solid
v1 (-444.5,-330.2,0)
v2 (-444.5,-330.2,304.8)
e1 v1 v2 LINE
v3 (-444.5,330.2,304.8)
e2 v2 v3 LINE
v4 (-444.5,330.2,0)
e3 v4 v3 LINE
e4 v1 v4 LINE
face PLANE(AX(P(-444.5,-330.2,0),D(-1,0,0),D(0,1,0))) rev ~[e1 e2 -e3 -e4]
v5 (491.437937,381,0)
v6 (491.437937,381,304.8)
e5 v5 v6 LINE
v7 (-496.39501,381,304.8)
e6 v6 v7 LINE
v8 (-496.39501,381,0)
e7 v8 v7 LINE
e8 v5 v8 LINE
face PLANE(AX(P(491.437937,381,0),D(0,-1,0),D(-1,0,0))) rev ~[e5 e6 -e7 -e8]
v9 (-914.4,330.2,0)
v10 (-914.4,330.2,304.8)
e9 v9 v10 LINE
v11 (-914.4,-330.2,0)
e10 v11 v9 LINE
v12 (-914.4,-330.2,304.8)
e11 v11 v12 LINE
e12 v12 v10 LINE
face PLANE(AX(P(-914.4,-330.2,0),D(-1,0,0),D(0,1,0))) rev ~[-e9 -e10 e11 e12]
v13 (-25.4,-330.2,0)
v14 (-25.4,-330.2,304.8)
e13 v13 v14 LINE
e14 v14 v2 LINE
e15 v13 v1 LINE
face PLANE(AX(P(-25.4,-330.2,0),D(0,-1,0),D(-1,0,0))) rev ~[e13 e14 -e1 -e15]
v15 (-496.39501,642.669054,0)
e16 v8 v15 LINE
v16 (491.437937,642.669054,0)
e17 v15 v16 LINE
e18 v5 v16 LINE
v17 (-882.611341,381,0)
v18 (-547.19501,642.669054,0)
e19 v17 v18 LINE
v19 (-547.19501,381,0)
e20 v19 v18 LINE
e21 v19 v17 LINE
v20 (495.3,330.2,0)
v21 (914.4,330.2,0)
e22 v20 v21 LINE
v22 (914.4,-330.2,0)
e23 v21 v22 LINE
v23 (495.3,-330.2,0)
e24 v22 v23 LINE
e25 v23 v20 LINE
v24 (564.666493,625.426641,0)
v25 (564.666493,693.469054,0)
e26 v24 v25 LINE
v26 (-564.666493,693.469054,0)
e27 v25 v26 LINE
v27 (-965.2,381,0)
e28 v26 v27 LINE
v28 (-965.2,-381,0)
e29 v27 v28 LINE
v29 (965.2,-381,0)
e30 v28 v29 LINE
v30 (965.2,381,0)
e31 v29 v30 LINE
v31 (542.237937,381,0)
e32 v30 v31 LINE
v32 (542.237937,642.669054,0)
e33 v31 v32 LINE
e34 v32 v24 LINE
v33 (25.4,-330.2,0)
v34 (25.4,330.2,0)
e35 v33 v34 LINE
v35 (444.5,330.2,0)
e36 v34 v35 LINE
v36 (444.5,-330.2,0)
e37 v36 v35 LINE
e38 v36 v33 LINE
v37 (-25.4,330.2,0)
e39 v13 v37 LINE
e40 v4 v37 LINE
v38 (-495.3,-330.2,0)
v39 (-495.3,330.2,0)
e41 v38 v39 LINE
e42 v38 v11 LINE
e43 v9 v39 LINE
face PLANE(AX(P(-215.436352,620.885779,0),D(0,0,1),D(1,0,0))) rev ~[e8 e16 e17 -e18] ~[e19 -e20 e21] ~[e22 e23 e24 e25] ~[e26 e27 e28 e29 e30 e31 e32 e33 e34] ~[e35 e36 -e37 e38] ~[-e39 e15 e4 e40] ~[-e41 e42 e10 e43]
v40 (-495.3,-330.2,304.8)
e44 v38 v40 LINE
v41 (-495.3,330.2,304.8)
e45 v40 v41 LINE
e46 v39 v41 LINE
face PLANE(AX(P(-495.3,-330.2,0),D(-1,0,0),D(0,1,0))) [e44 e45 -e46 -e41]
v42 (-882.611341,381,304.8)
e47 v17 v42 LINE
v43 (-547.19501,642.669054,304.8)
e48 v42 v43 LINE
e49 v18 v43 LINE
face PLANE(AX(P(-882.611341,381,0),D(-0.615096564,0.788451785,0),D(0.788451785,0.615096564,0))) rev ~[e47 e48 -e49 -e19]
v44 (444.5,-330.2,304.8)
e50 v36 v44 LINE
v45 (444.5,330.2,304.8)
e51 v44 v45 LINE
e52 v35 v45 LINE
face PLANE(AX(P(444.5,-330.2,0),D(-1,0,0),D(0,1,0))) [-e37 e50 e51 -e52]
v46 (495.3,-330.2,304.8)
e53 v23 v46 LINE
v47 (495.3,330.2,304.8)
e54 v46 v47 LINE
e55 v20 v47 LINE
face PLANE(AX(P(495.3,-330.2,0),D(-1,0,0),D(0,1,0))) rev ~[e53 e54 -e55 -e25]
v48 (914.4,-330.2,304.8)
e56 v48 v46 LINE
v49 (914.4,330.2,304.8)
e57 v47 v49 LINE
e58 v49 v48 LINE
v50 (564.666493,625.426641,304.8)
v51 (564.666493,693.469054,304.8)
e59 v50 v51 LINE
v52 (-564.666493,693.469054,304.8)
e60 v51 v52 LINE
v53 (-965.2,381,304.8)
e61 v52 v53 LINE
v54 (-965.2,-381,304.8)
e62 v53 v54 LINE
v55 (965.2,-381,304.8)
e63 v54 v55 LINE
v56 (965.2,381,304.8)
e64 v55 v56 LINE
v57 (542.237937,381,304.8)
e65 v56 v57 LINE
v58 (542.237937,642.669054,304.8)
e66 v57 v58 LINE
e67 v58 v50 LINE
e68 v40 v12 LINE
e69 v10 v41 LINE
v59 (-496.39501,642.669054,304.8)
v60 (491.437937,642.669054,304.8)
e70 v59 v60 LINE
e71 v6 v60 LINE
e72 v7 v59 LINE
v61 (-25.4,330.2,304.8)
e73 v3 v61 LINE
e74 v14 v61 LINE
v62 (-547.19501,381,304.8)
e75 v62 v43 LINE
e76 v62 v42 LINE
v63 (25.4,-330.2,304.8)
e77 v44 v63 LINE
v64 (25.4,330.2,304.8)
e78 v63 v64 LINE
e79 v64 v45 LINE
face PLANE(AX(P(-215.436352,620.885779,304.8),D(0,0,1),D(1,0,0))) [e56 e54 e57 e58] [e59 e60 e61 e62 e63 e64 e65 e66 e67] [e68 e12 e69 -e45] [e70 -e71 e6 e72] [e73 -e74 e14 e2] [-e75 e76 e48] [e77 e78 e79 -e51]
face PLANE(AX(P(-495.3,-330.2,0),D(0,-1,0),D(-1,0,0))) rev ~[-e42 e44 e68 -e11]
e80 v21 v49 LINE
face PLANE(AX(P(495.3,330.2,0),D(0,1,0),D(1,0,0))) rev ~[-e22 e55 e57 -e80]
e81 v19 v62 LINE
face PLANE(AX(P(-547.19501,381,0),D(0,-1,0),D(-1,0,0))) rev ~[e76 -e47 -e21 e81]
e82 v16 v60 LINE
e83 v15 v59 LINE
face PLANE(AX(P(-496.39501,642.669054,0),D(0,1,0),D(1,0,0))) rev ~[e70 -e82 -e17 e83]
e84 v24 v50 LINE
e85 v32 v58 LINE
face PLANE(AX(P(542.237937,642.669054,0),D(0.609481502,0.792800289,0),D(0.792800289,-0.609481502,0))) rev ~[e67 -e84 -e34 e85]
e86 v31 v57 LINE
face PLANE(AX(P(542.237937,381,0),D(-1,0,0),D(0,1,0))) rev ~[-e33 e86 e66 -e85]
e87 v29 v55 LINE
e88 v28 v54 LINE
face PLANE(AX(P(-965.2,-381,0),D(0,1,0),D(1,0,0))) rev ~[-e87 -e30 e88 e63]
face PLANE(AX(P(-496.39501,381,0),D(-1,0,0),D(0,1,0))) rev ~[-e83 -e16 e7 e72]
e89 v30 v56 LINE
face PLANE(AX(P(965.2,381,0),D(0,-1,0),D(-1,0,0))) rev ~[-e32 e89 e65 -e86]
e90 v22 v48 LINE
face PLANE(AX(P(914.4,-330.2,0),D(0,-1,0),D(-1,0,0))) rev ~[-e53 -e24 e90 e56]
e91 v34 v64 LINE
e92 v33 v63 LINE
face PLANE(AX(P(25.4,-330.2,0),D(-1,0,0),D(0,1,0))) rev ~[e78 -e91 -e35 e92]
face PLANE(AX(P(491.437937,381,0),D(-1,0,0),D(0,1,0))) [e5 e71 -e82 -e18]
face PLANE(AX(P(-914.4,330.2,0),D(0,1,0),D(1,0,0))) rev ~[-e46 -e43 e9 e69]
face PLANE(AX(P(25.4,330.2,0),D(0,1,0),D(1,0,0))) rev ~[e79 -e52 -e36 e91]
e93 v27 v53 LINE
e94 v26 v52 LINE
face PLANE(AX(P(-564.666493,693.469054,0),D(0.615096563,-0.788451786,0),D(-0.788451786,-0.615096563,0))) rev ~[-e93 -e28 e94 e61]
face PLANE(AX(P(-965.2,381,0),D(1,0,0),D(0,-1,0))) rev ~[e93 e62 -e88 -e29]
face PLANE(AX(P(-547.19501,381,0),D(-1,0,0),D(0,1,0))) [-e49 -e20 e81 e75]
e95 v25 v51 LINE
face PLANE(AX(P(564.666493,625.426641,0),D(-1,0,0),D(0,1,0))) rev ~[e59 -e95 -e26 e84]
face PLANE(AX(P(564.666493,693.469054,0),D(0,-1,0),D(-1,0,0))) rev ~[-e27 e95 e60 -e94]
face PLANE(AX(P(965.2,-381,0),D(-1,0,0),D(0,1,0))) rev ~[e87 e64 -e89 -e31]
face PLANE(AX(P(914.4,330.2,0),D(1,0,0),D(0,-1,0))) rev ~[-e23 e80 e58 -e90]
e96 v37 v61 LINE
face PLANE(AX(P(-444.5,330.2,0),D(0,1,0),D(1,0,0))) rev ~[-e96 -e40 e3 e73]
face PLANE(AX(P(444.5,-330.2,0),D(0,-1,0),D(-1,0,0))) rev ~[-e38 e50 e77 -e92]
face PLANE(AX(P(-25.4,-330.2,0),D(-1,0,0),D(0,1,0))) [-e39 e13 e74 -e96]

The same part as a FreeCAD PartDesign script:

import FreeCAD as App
import Part
import Sketcher

V = App.Vector
Q = App.Units.Quantity

doc = App.newDocument("Part")
body = doc.addObject("PartDesign::Body", "Body")

# Sketch on XY plane
sketch1 = body.newObject("Sketcher::SketchObject", "Sketch")
sketch1.AttachmentSupport = (doc.getObject("XY_Plane"), [""])
sketch1.MapMode = "FlatFace"
sketch1.addGeometry([
    Part.LineSegment(V(565, 625, 0), V(565, 693, 0)),  # 0
    Part.LineSegment(V(565, 693, 0), V(-565, 693, 0)),  # 1
    Part.LineSegment(V(-565, 693, 0), V(-965, 381, 0)),  # 2
    Part.LineSegment(V(-965, 381, 0), V(-965, -381, 0)),  # 3
    Part.LineSegment(V(-965, -381, 0), V(965, -381, 0)),  # 4
    Part.LineSegment(V(965, -381, 0), V(965, 381, 0)),  # 5
    Part.LineSegment(V(965, 381, 0), V(542, 381, 0)),  # 6
    Part.LineSegment(V(542, 381, 0), V(542, 643, 0)),  # 7
    Part.LineSegment(V(542, 643, 0), V(565, 625, 0)),  # 8
    Part.LineSegment(V(-914, 330, 0), V(-495, 330, 0)),  # 9
    Part.LineSegment(V(-495, 330, 0), V(-495, -330, 0)),  # 10
    Part.LineSegment(V(-495, -330, 0), V(-914, -330, 0)),  # 11
    Part.LineSegment(V(-914, -330, 0), V(-914, 330, 0)),  # 12
    Part.LineSegment(V(-444, 330, 0), V(-25, 330, 0)),  # 13
    Part.LineSegment(V(-25, 330, 0), V(-25, -330, 0)),  # 14
    Part.LineSegment(V(-25, -330, 0), V(-444, -330, 0)),  # 15
    Part.LineSegment(V(-444, -330, 0), V(-444, 330, 0)),  # 16
    Part.LineSegment(V(25, 330, 0), V(444, 330, 0)),  # 17
    Part.LineSegment(V(444, 330, 0), V(444, -330, 0)),  # 18
    Part.LineSegment(V(444, -330, 0), V(25, -330, 0)),  # 19
    Part.LineSegment(V(25, -330, 0), V(25, 330, 0)),  # 20
    Part.LineSegment(V(495, 330, 0), V(914, 330, 0)),  # 21
    Part.LineSegment(V(914, 330, 0), V(914, -330, 0)),  # 22
    Part.LineSegment(V(914, -330, 0), V(495, -330, 0)),  # 23
    Part.LineSegment(V(495, -330, 0), V(495, 330, 0)),  # 24
    Part.LineSegment(V(-883, 381, 0), V(-547, 643, 0)),  # 25
    Part.LineSegment(V(-547, 643, 0), V(-547, 381, 0)),  # 26
    Part.LineSegment(V(-547, 381, 0), V(-883, 381, 0)),  # 27
    Part.LineSegment(V(-496, 381, 0), V(-496, 643, 0)),  # 28
    Part.LineSegment(V(-496, 643, 0), V(491, 643, 0)),  # 29
    Part.LineSegment(V(491, 643, 0), V(491, 381, 0)),  # 30
    Part.LineSegment(V(491, 381, 0), V(-496, 381, 0)),  # 31
], False)
sketch1.addConstraint([
    Sketcher.Constraint("Coincident", 0, 2, 1, 1),
    Sketcher.Constraint("Coincident", 1, 2, 2, 1),
    Sketcher.Constraint("Coincident", 2, 2, 3, 1),
    Sketcher.Constraint("Coincident", 3, 2, 4, 1),
    Sketcher.Constraint("Coincident", 4, 2, 5, 1),
    Sketcher.Constraint("Coincident", 5, 2, 6, 1),
    Sketcher.Constraint("Coincident", 6, 2, 7, 1),
    Sketcher.Constraint("Coincident", 7, 2, 8, 1),
    Sketcher.Constraint("Coincident", 8, 2, 0, 1),
    Sketcher.Constraint("Coincident", 9, 2, 10, 1),
    Sketcher.Constraint("Coincident", 10, 2, 11, 1),
    Sketcher.Constraint("Coincident", 11, 2, 12, 1),
    Sketcher.Constraint("Coincident", 12, 2, 9, 1),
    Sketcher.Constraint("Coincident", 13, 2, 14, 1),
    Sketcher.Constraint("Coincident", 14, 2, 15, 1),
    Sketcher.Constraint("Coincident", 15, 2, 16, 1),
    Sketcher.Constraint("Coincident", 16, 2, 13, 1),
    Sketcher.Constraint("Coincident", 17, 2, 18, 1),
    Sketcher.Constraint("Coincident", 18, 2, 19, 1),
    Sketcher.Constraint("Coincident", 19, 2, 20, 1),
    Sketcher.Constraint("Coincident", 20, 2, 17, 1),
    Sketcher.Constraint("Coincident", 21, 2, 22, 1),
    Sketcher.Constraint("Coincident", 22, 2, 23, 1),
    Sketcher.Constraint("Coincident", 23, 2, 24, 1),
    Sketcher.Constraint("Coincident", 24, 2, 21, 1),
    Sketcher.Constraint("Coincident", 25, 2, 26, 1),
    Sketcher.Constraint("Coincident", 26, 2, 27, 1),
    Sketcher.Constraint("Coincident", 27, 2, 25, 1),
    Sketcher.Constraint("Coincident", 28, 2, 29, 1),
    Sketcher.Constraint("Coincident", 29, 2, 30, 1),
    Sketcher.Constraint("Coincident", 30, 2, 31, 1),
    Sketcher.Constraint("Coincident", 31, 2, 28, 1),
    Sketcher.Constraint("Vertical", 0),
    Sketcher.Constraint("Horizontal", 1),
    Sketcher.Constraint("Vertical", 3),
    Sketcher.Constraint("Horizontal", 4),
    Sketcher.Constraint("Vertical", 5),
    Sketcher.Constraint("Horizontal", 6),
    Sketcher.Constraint("Vertical", 7),
    Sketcher.Constraint("Horizontal", 9),
    Sketcher.Constraint("Vertical", 10),
    Sketcher.Constraint("Horizontal", 11),
    Sketcher.Constraint("Vertical", 12),
    Sketcher.Constraint("Horizontal", 13),
    Sketcher.Constraint("Vertical", 14),
    Sketcher.Constraint("Horizontal", 15),
    Sketcher.Constraint("Vertical", 16),
    Sketcher.Constraint("Horizontal", 17),
    Sketcher.Constraint("Vertical", 18),
    Sketcher.Constraint("Horizontal", 19),
    Sketcher.Constraint("Vertical", 20),
    Sketcher.Constraint("Horizontal", 21),
    Sketcher.Constraint("Vertical", 22),
    Sketcher.Constraint("Horizontal", 23),
    Sketcher.Constraint("Vertical", 24),
    Sketcher.Constraint("Vertical", 26),
    Sketcher.Constraint("Horizontal", 27),
    Sketcher.Constraint("Vertical", 28),
    Sketcher.Constraint("Horizontal", 29),
    Sketcher.Constraint("Vertical", 30),
    Sketcher.Constraint("Horizontal", 31),
    Sketcher.Constraint("Symmetric", 2, 2, 4, 2, -1, 1),
    Sketcher.Constraint("Symmetric", 15, 2, 17, 2, -1, 1),
    Sketcher.Constraint("Symmetric", 13, 2, 19, 2, -1, 1),
    Sketcher.Constraint("Symmetric", 11, 2, 21, 2, -1, 1),
    Sketcher.Constraint("Symmetric", 9, 2, 23, 2, -1, 1),
    Sketcher.Constraint("Parallel", 2, 25),
    Sketcher.Constraint("Horizontal", 2, 2, 5, 2),
    Sketcher.Constraint("Horizontal", 12, 2, 13, 2),
    Sketcher.Constraint("Horizontal", 11, 2, 14, 2),
    Sketcher.Constraint("Horizontal", 16, 2, 17, 2),
    Sketcher.Constraint("Horizontal", 7, 2, 25, 2),
    Sketcher.Constraint("Horizontal", 6, 2, 26, 2),
    Sketcher.Constraint("Horizontal", 25, 2, 28, 2),
    Sketcher.Constraint("Horizontal", 27, 2, 30, 2),
    Sketcher.Constraint("Equal", 11, 13),
    Sketcher.Constraint("DistanceX", 4, 1, 4, 2, Q("76 in")),
    Sketcher.Constraint("DistanceY", 3, 2, 3, 1, Q("30 in")),
    Sketcher.Constraint("DistanceY", 10, 2, 10, 1, Q("26 in")),
    Sketcher.Constraint("Distance", 2, Q("20 in")),
    Sketcher.Constraint("DistanceX", 9, 1, 9, 2, Q("16.5 in")),
    Sketcher.Constraint("DistanceX", 11, 2, -1, 1, Q("36 in")),
    Sketcher.Constraint("DistanceX", 13, 2, -1, 1, Q("1 in")),
    Sketcher.Constraint("DistanceY", 7, 2, 0, 2, Q("2 in")),
    Sketcher.Constraint("DistanceX", 25, 2, 28, 2, Q("2 in")),
    Sketcher.Constraint("DistanceX", 29, 2, 7, 2, Q("2 in")),
    Sketcher.Constraint("DistanceX", 27, 2, 27, 1, 335.416331),
    Sketcher.Constraint("DistanceX", 1, 2, 1, 1, 1129.332986),
    Sketcher.Constraint("DistanceX", 6, 2, 6, 1, 422.962063),
    Sketcher.Constraint("DistanceX", 29, 1, 29, 2, 987.832947),
    Sketcher.Constraint("DistanceY", 0, 1, 0, 2, 68.042413),
])
pad1 = body.newObject("PartDesign::Pad", "Pad")
pad1.Profile = sketch1
pad1.Length = Q("12 in")

doc.recompute()
